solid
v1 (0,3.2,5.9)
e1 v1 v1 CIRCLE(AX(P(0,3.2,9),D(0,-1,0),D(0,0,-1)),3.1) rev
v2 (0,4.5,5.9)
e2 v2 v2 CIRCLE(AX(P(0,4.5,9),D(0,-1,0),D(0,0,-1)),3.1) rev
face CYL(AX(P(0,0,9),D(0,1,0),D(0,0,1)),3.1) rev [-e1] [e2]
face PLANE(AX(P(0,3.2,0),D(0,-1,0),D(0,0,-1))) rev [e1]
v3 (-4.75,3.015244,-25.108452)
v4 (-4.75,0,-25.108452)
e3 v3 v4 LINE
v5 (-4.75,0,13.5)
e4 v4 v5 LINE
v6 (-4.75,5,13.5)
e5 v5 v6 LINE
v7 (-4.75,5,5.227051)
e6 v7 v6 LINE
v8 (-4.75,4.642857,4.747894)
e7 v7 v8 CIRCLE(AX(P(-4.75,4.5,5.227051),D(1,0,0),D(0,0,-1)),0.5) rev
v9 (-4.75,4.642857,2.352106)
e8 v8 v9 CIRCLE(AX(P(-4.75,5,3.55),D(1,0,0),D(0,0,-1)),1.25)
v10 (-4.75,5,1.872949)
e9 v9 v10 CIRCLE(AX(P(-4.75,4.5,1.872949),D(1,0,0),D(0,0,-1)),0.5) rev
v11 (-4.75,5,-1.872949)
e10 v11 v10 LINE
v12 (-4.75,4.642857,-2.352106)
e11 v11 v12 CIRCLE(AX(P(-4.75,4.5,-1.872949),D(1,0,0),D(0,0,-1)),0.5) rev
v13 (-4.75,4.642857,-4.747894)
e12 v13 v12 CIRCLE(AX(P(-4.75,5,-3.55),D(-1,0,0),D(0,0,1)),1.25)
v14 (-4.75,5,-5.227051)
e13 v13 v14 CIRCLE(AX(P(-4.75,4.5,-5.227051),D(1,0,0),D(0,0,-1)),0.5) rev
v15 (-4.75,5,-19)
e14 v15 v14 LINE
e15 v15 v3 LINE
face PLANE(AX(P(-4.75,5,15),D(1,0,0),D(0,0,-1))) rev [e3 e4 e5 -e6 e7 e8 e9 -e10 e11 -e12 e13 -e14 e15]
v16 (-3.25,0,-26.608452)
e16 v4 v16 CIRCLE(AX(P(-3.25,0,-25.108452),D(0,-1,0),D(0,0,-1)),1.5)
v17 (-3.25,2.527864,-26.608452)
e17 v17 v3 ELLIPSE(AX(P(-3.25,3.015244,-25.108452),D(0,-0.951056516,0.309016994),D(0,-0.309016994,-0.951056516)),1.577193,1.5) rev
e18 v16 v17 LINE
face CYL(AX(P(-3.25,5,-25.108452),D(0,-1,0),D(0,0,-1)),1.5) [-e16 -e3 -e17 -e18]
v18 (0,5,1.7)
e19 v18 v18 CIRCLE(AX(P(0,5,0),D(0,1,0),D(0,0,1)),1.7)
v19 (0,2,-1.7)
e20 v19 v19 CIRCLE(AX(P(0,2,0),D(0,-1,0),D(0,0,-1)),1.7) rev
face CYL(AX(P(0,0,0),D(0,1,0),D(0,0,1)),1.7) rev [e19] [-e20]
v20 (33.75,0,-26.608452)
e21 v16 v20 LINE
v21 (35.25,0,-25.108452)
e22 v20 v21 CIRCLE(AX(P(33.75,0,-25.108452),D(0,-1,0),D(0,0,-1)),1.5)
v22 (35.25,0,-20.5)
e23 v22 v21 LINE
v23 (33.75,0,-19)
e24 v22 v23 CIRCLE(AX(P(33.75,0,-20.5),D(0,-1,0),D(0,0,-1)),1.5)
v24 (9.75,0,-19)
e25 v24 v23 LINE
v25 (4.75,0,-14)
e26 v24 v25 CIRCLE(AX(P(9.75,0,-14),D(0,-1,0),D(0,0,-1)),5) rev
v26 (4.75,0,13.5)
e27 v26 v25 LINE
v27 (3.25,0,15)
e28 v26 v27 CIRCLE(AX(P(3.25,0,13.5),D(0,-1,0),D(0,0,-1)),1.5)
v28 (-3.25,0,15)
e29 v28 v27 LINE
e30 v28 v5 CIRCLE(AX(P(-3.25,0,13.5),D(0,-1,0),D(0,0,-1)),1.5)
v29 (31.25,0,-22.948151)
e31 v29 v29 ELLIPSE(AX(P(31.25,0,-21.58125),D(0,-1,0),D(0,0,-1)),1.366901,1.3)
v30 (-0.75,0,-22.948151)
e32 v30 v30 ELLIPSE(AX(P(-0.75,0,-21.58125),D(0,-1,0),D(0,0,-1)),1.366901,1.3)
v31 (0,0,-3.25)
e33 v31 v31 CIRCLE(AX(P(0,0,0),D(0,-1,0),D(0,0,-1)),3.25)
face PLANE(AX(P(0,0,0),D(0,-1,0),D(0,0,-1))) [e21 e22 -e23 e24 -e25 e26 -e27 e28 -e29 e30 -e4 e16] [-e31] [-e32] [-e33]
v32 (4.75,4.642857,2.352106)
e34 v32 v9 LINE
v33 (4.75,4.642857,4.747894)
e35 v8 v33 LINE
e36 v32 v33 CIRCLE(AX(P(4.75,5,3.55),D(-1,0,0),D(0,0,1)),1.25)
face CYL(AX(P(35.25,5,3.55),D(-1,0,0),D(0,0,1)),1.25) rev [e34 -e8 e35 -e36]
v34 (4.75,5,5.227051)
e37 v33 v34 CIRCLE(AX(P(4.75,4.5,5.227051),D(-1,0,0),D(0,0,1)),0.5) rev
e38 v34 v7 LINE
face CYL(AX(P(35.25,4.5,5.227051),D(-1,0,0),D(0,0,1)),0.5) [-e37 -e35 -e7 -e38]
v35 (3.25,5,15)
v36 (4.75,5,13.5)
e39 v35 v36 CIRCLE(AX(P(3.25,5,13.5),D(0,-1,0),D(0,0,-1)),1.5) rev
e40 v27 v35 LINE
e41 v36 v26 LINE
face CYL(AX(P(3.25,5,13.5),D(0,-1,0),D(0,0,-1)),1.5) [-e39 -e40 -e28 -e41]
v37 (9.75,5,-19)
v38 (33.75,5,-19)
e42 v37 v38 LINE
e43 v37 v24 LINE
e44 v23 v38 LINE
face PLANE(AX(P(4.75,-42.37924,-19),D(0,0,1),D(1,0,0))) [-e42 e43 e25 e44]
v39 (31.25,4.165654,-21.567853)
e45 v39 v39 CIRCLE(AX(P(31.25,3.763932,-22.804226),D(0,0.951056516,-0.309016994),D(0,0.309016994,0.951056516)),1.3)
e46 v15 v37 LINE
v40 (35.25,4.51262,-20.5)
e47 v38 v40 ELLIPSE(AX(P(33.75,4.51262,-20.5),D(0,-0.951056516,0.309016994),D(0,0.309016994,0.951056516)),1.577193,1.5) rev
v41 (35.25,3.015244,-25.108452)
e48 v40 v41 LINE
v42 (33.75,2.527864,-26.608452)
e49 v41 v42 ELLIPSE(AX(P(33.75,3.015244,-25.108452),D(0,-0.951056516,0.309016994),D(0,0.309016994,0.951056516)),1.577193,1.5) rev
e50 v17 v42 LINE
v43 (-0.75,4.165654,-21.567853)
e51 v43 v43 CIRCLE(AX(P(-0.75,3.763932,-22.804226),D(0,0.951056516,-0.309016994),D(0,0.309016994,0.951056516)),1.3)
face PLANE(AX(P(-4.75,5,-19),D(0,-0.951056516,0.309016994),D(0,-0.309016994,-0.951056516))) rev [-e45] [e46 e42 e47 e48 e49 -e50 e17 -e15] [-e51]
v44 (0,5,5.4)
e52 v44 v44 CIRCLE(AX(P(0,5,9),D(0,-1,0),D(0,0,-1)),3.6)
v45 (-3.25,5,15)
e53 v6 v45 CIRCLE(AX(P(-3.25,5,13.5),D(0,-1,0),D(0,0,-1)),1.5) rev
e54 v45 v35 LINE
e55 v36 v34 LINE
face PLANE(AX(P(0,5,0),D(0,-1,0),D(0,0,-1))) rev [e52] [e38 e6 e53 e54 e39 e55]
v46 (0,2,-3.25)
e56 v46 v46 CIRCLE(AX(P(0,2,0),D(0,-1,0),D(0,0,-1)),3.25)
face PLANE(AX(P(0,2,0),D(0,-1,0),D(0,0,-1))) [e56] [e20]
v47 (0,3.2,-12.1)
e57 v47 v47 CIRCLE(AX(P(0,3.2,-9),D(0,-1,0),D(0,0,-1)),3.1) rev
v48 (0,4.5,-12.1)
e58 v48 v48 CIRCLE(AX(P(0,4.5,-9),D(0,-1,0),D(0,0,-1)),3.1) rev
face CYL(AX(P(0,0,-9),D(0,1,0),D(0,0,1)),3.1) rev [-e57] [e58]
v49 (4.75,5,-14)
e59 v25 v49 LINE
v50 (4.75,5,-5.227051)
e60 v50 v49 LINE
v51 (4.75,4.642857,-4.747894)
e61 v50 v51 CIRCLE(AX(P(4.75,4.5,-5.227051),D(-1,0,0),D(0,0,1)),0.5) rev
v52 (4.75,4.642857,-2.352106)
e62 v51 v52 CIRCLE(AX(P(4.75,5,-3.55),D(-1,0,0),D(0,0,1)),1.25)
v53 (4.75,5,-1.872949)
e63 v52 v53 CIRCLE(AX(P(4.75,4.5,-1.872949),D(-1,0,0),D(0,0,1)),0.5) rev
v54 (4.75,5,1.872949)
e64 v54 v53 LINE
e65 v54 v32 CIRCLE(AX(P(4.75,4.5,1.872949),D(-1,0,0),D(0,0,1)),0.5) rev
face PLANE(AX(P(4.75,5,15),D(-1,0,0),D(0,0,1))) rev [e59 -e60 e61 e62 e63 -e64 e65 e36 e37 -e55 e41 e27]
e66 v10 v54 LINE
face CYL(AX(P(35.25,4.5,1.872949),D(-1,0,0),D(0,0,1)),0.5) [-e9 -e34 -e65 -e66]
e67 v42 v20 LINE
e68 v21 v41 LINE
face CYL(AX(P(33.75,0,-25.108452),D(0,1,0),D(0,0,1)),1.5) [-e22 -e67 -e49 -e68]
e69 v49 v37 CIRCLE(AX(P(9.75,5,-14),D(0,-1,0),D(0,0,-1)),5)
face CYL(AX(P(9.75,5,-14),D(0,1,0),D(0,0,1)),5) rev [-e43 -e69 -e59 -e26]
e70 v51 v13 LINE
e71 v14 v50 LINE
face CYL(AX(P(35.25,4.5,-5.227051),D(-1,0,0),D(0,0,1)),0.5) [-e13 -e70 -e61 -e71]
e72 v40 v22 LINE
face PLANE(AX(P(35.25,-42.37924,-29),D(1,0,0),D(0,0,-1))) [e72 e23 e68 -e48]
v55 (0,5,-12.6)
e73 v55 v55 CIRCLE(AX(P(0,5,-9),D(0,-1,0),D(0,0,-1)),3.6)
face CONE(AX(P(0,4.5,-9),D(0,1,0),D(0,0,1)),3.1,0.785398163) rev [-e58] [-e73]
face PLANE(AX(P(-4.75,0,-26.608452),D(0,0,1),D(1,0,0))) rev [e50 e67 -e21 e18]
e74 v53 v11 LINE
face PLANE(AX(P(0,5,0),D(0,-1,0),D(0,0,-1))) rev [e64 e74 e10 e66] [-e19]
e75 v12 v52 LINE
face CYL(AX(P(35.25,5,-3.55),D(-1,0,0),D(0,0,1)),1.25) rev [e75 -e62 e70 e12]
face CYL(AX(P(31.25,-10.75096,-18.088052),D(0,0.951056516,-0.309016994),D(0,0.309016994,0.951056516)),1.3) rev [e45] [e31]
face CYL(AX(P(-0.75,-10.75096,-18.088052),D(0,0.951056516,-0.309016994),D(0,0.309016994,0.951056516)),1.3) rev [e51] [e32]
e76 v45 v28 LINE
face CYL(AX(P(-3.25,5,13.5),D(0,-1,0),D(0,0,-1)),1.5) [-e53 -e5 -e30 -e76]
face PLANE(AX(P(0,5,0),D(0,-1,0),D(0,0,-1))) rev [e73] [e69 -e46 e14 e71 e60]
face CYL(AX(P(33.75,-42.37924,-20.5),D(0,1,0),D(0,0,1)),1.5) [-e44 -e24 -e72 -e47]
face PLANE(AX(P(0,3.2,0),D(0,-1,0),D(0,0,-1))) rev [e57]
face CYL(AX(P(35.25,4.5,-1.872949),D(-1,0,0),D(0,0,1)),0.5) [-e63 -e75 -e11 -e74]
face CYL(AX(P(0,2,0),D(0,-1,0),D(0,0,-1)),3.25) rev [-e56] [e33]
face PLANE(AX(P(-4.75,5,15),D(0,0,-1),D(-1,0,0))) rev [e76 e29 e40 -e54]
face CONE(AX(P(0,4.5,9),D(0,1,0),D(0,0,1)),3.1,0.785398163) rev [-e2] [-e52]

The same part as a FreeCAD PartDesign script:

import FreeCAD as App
import Part
import Sketcher
Q = App.Units.Quantity


def edges_at(feature, points):
    """Names of the edges that pass closest to the given points."""
    edges = feature.Shape.Edges
    near = lambda p: min(range(len(edges)), key=lambda i: edges[i].distToShape(Part.Vertex(*p))[0])
    return sorted({f"Edge{near(p) + 1}" for p in points})


def add_polygon(sketch, points):
    """Adds a closed chain of lines whose ends are joined by coincident constraints."""
    first, n = sketch.GeometryCount, len(points)
    for a, b in zip(points, points[1:] + points[:1]):
        sketch.addGeometry(Part.LineSegment(App.Vector(*a, 0), App.Vector(*b, 0)), False)
    for i in range(n):
        sketch.addConstraint(Sketcher.Constraint("Coincident", first + i, 2, first + (i + 1) % n, 1))

doc = App.newDocument("Part")
body = doc.addObject("PartDesign::Body", "Body")

# Sketch on XZ plane
sketch1 = body.newObject("Sketcher::SketchObject", "Sketch")
sketch1.AttachmentSupport = (doc.getObject("XZ_Plane"), [""])
sketch1.MapMode = "FlatFace"
add_polygon(sketch1, [(-5, -15), (-5, 15), (5, 15), (5, -15)])  # lines 0-3
sketch1.addConstraint(Sketcher.Constraint("Vertical", 0))
sketch1.addConstraint(Sketcher.Constraint("Horizontal", 1))
sketch1.addConstraint(Sketcher.Constraint("Vertical", 2))
sketch1.addConstraint(Sketcher.Constraint("Horizontal", 3))
sketch1.addConstraint(Sketcher.Constraint("Symmetric", 0, 2, 2, 2, -1, 1))
sketch1.addConstraint(Sketcher.Constraint("DistanceY", 0, 1, 0, 2, 30.0))
sketch1.addConstraint(Sketcher.Constraint("DistanceX", 1, 1, 1, 2, 9.5))
pad1 = body.newObject("PartDesign::Pad", "Pad")
pad1.Profile = sketch1
pad1.Length = 5
pad1.Reversed = True

# Sketch on XZ plane
sketch2 = body.newObject("Sketcher::SketchObject", "Sketch001")
sketch2.AttachmentSupport = (doc.getObject("XZ_Plane"), [""])
sketch2.MapMode = "FlatFace"
sketch2.AttachmentOffset = App.Placement(App.Vector(0, 0, -5), App.Rotation())
sketch2.addGeometry(Part.Circle(App.Vector(0, -9, 0), App.Vector(0, 0, 1), 3.1), False)
sketch2.addGeometry(Part.Circle(App.Vector(0, 0, 0), App.Vector(0, 0, 1), 1.7), False)
sketch2.addGeometry(Part.Circle(App.Vector(0, 9, 0), App.Vector(0, 0, 1), 3.1), False)
sketch2.addConstraint(Sketcher.Constraint("Coincident", 1, 3, -1, 1))
sketch2.addConstraint(Sketcher.Constraint("Equal", 0, 2))
sketch2.addConstraint(Sketcher.Constraint("Symmetric", 0, 3, 2, 3, -1, 1))
sketch2.addConstraint(Sketcher.Constraint("PointOnObject", 0, 3, -2))
sketch2.addConstraint(Sketcher.Constraint("Diameter", 0, 6.2))
sketch2.addConstraint(Sketcher.Constraint("Diameter", 1, 3.4))
sketch2.addConstraint(Sketcher.Constraint("DistanceY", 0, 3, -1, 1, 9.0))
pocket1 = body.newObject("PartDesign::Pocket", "Pocket")
pocket1.Profile = sketch2
pocket1.Type = "ThroughAll"
pocket1.Reversed = True

# Sketch on XZ plane
sketch3 = body.newObject("Sketcher::SketchObject", "Sketch002")
sketch3.AttachmentSupport = (doc.getObject("XZ_Plane"), [""])
sketch3.MapMode = "FlatFace"
sketch3.AttachmentOffset = App.Placement(App.Vector(0, 0, -3.2), App.Rotation())
sketch3.addGeometry(Part.Circle(App.Vector(0, 9, 0), App.Vector(0, 0, 1), 3.1), False)
sketch3.addGeometry(Part.Circle(App.Vector(0, -9, 0), App.Vector(0, 0, 1), 3.1), False)
sketch3.addConstraint(Sketcher.Constraint("Equal", 0, 1))
sketch3.addConstraint(Sketcher.Constraint("Symmetric", 0, 3, 1, 3, -1, 1))
sketch3.addConstraint(Sketcher.Constraint("PointOnObject", 0, 3, -2))
sketch3.addConstraint(Sketcher.Constraint("Diameter", 0, 6.2))
sketch3.addConstraint(Sketcher.Constraint("DistanceY", -1, 1, 0, 3, 9.0))
pad2 = body.newObject("PartDesign::Pad", "Pad001")
pad2.Profile = sketch3
pad2.Length = 3.2
doc.recompute()

chamfer = body.newObject("PartDesign::Chamfer", "Chamfer")
chamfer.Base = (pad2, edges_at(pad2, [(0, 5, -12.1), (0, 5, 5.9)]))
chamfer.Size = 0.5

# Sketch on XZ plane
sketch4 = body.newObject("Sketcher::SketchObject", "Sketch003")
sketch4.AttachmentSupport = (doc.getObject("XZ_Plane"), [""])
sketch4.MapMode = "FlatFace"
sketch4.AttachmentOffset = App.Placement(App.Vector(0, 0, -5), App.Rotation())
add_polygon(sketch4, [(-4.8, -29), (-4.8, -15), (4.8, -15), (4.8, -19), (35.2, -19), (35.2, -29)])  # lines 0-5
sketch4.addConstraint(Sketcher.Constraint("Vertical", 0))
sketch4.addConstraint(Sketcher.Constraint("Horizontal", 1))
sketch4.addConstraint(Sketcher.Constraint("Vertical", 2))
sketch4.addConstraint(Sketcher.Constraint("Horizontal", 3))
sketch4.addConstraint(Sketcher.Constraint("Vertical", 4))
sketch4.addConstraint(Sketcher.Constraint("Horizontal", 5))
sketch4.addConstraint(Sketcher.Constraint("DistanceX", 5, 2, 5, 1, 40.0))
sketch4.addConstraint(Sketcher.Constraint("DistanceY", 0, 1, 0, 2, 14.0))
sketch4.addConstraint(Sketcher.Constraint("DistanceY", 2, 2, 2, 1, 4.0))
sketch4.addConstraint(Sketcher.Constraint("DistanceX", 1, 1, 1, 2, 9.5))
sketch4.addConstraint(Sketcher.Constraint("DistanceY", 0, 2, -1, 1, 15.0))
sketch4.addConstraint(Sketcher.Constraint("DistanceX", 0, 2, -1, 1, 4.75))
pad3 = body.newObject("PartDesign::Pad", "Pad002")
pad3.Profile = sketch4
pad3.Length = 5

# Sketch on YZ plane
sketch5 = body.newObject("Sketcher::SketchObject", "Sketch004")
sketch5.AttachmentSupport = (doc.getObject("YZ_Plane"), [""])
sketch5.MapMode = "FlatFace"
sketch5.AttachmentOffset = App.Placement(App.Vector(0, 0, 35.25), App.Rotation())
add_polygon(sketch5, [(5, -19), (1.8, -29), (5, -29)])  # lines 0-2
sketch5.addConstraint(Sketcher.Constraint("Horizontal", 1))
sketch5.addConstraint(Sketcher.Constraint("Vertical", 2))
sketch5.addConstraint(Sketcher.Constraint("DistanceY", 2, 1, 2, 2, 10.0))
sketch5.addConstraint(Sketcher.Constraint("Angle", 0, Q("-108 deg")))
sketch5.addConstraint(Sketcher.Constraint("DistanceY", 0, 2, -1, 1, 29.0))
sketch5.addConstraint(Sketcher.Constraint("DistanceX", -1, 1, 1, 2, 5.0))
pocket2 = body.newObject("PartDesign::Pocket", "Pocket001")
pocket2.Profile = sketch5
pocket2.Type = "ThroughAll"

# Sketch on an angled plane
sketch6 = body.newObject("Sketcher::SketchObject", "Sketch005")
sketch6.Placement = App.Placement(App.Vector(0, 10.106502, -3.283802), App.Rotation(App.Vector(1, 0, 0), App.Vector(0, -0.309016994, -0.951056516), App.Vector(0, 0.951056516, -0.309016994), "ZXY"))
sketch6.addGeometry(Part.Circle(App.Vector(-0.8, 20.5, 0), App.Vector(0, 0, 1), 1.3), False)
sketch6.addGeometry(Part.Circle(App.Vector(31.2, 20.5, 0), App.Vector(0, 0, 1), 1.3), False)
sketch6.addConstraint(Sketcher.Constraint("Equal", 0, 1))
sketch6.addConstraint(Sketcher.Constraint("Horizontal", 0, 3, 1, 3))
sketch6.addConstraint(Sketcher.Constraint("Diameter", 0, 2.6))
sketch6.addConstraint(Sketcher.Constraint("DistanceX", 0, 3, 1, 3, 32.0))
sketch6.addConstraint(Sketcher.Constraint("DistanceX", 0, 3, -1, 1, 0.75))
sketch6.addConstraint(Sketcher.Constraint("DistanceY", -1, 1, 0, 3, 20.524989))
pocket3 = body.newObject("PartDesign::Pocket", "Pocket002")
pocket3.Profile = sketch6
pocket3.Type = "ThroughAll"

# Sketch on YZ plane
sketch7 = body.newObject("Sketcher::SketchObject", "Sketch006")
sketch7.AttachmentSupport = (doc.getObject("YZ_Plane"), [""])
sketch7.MapMode = "FlatFace"
sketch7.AttachmentOffset = App.Placement(App.Vector(0, 0, 35.25), App.Rotation())
add_polygon(sketch7, [(2.5, -26.6), (0, -26.6), (0, -29), (2.5, -29)])  # lines 0-3
sketch7.addConstraint(Sketcher.Constraint("Horizontal", 0))
sketch7.addConstraint(Sketcher.Constraint("Vertical", 1))
sketch7.addConstraint(Sketcher.Constraint("Horizontal", 2))
sketch7.addConstraint(Sketcher.Constraint("Vertical", 3))
sketch7.addConstraint(Sketcher.Constraint("PointOnObject", 0, 2, -2))
sketch7.addConstraint(Sketcher.Constraint("DistanceY", 1, 2, -1, 1, 29.0))
sketch7.addConstraint(Sketcher.Constraint("DistanceX", 0, 2, 0, 1, 2.527864))
sketch7.addConstraint(Sketcher.Constraint("DistanceY", 1, 2, 1, 1, 2.391548))
pocket4 = body.newObject("PartDesign::Pocket", "Pocket003")
pocket4.Profile = sketch7
pocket4.Type = "ThroughAll"
doc.recompute()

fillet = body.newObject("PartDesign::Fillet", "Fillet")
fillet.Base = (pocket4, edges_at(pocket4, [
    (35.25, 2.5, -19),
    (4.75, 2.5, 15),
    (-4.75, 2.5, 15),
    (35.25, 1.264, -26.608),
    (-4.75, 1.264, -26.608),
]))
fillet.Radius = 1.5
doc.recompute()

fillet2 = body.newObject("PartDesign::Fillet", "Fillet001")
fillet2.Base = (fillet, edges_at(fillet, [(4.75, 2.5, -19)]))
fillet2.Radius = 5

# Sketch on XZ plane
sketch8 = body.newObject("Sketcher::SketchObject", "Sketch007")
sketch8.AttachmentSupport = (doc.getObject("XZ_Plane"), [""])
sketch8.MapMode = "FlatFace"
sketch8.addGeometry(Part.Circle(App.Vector(0, 0, 0), App.Vector(0, 0, 1), 3.2), False)
sketch8.addConstraint(Sketcher.Constraint("Coincident", 0, 3, -1, 1))
sketch8.addConstraint(Sketcher.Constraint("Diameter", 0, 6.5))
pocket5 = body.newObject("PartDesign::Pocket", "Pocket004")
pocket5.Profile = sketch8
pocket5.Length = 2

# Sketch on YZ plane
sketch9 = body.newObject("Sketcher::SketchObject", "Sketch008")
sketch9.AttachmentSupport = (doc.getObject("YZ_Plane"), [""])
sketch9.MapMode = "FlatFace"
sketch9.AttachmentOffset = App.Placement(App.Vector(0, 0, -4.75), App.Rotation())
sketch9.addGeometry(Part.Circle(App.Vector(5, -3.5, 0), App.Vector(0, 0, 1), 1.2), False)
sketch9.addGeometry(Part.Circle(App.Vector(5, 3.5, 0), App.Vector(0, 0, 1), 1.2), False)
sketch9.addConstraint(Sketcher.Constraint("Equal", 0, 1))
sketch9.addConstraint(Sketcher.Constraint("Symmetric", 0, 3, 1, 3, -1))
sketch9.addConstraint(Sketcher.Constraint("Diameter", 0, 2.5))
sketch9.addConstraint(Sketcher.Constraint("DistanceX", -1, 1, 0, 3, 5.0))
sketch9.addConstraint(Sketcher.Constraint("DistanceY", 0, 3, 1, 3, 7.1))
pocket6 = body.newObject("PartDesign::Pocket", "Pocket005")
pocket6.Profile = sketch9
pocket6.Type = "ThroughAll"
pocket6.Reversed = True
doc.recompute()

fillet3 = body.newObject("PartDesign::Fillet", "Fillet002")
fillet3.Base = (pocket6, edges_at(pocket6, [
    (0, 5, -4.8),
    (0, 5, -2.3),
    (0, 5, 4.8),
    (0, 5, 2.3),
]))
fillet3.Radius = 0.5

doc.recompute()
